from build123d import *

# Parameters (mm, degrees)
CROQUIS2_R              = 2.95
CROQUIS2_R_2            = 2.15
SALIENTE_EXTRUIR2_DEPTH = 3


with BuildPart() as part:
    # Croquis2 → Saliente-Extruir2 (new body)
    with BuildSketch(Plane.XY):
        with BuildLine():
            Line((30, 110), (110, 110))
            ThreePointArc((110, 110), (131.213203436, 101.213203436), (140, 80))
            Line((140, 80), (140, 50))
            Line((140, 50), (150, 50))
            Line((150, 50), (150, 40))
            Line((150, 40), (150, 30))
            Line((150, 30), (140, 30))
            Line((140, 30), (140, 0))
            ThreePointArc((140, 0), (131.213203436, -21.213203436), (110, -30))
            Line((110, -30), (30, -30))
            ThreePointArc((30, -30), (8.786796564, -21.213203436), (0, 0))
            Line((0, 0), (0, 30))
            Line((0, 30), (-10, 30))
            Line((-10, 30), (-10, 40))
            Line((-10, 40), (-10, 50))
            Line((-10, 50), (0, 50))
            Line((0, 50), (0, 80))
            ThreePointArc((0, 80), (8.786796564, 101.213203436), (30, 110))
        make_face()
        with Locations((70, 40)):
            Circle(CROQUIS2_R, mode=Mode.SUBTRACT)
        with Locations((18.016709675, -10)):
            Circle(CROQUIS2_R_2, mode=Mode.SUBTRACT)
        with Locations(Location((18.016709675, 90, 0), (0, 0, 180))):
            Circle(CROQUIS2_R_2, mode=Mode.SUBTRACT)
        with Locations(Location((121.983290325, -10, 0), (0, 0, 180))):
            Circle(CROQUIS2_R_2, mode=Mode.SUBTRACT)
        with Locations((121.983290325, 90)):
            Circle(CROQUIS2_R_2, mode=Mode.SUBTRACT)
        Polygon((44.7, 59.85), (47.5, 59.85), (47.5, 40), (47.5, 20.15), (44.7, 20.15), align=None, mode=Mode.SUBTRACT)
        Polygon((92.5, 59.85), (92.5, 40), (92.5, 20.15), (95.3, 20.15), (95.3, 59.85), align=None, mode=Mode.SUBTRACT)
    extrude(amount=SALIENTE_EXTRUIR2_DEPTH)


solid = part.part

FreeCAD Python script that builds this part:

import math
import FreeCAD as App
import Part
import Sketcher
Q = App.Units.Quantity

doc = App.newDocument("Part")
body = doc.addObject("PartDesign::Body", "Body")

# Sketch on XY plane
sketch1 = body.newObject("Sketcher::SketchObject", "Sketch")
sketch1.AttachmentSupport = (doc.getObject("XY_Plane"), [""])
sketch1.MapMode = "FlatFace"
sketch1.addGeometry([
    Part.LineSegment(App.Vector(110, 110, 0), App.Vector(30, 110, 0)),  # 0
    Part.ArcOfCircle(Part.Circle(App.Vector(30, 80, 0), App.Vector(0, 0, 1), 30), math.radians(90), math.radians(180)),  # 1
    Part.LineSegment(App.Vector(0, 80, 0), App.Vector(0, 50, 0)),  # 2
    Part.LineSegment(App.Vector(0, 50, 0), App.Vector(-10, 50, 0)),  # 3
    Part.LineSegment(App.Vector(-10, 50, 0), App.Vector(-10, 30, 0)),  # 4
    Part.LineSegment(App.Vector(-10, 30, 0), App.Vector(0, 30, 0)),  # 5
    Part.LineSegment(App.Vector(0, 30, 0), App.Vector(0, 0, 0)),  # 6
    Part.ArcOfCircle(Part.Circle(App.Vector(30, 0, 0), App.Vector(0, 0, 1), 30), math.radians(180), math.radians(270)),  # 7
    Part.LineSegment(App.Vector(30, -30, 0), App.Vector(110, -30, 0)),  # 8
    Part.ArcOfCircle(Part.Circle(App.Vector(110, 0, 0), App.Vector(0, 0, 1), 30), math.radians(-90), math.radians(0)),  # 9
    Part.LineSegment(App.Vector(140, 0, 0), App.Vector(140, 30, 0)),  # 10
    Part.LineSegment(App.Vector(140, 30, 0), App.Vector(150, 30, 0)),  # 11
    Part.LineSegment(App.Vector(150, 30, 0), App.Vector(150, 50, 0)),  # 12
    Part.LineSegment(App.Vector(150, 50, 0), App.Vector(140, 50, 0)),  # 13
    Part.LineSegment(App.Vector(140, 50, 0), App.Vector(140, 80, 0)),  # 14
    Part.ArcOfCircle(Part.Circle(App.Vector(110, 80, 0), App.Vector(0, 0, 1), 30), math.radians(0), math.radians(90)),  # 15
    Part.Circle(App.Vector(122, -10, 0), App.Vector(0, 0, 1), 2.1),  # 16
    Part.Circle(App.Vector(18, -10, 0), App.Vector(0, 0, 1), 2.1),  # 17
    Part.LineSegment(App.Vector(92.5, 59.9, 0), App.Vector(95.3, 59.9, 0)),  # 18
    Part.LineSegment(App.Vector(95.3, 59.9, 0), App.Vector(95.3, 20.1, 0)),  # 19
    Part.LineSegment(App.Vector(95.3, 20.1, 0), App.Vector(92.5, 20.1, 0)),  # 20
    Part.LineSegment(App.Vector(92.5, 20.1, 0), App.Vector(92.5, 59.9, 0)),  # 21
    Part.Circle(App.Vector(122, 90, 0), App.Vector(0, 0, 1), 2.1),  # 22
    Part.Circle(App.Vector(70, 40, 0), App.Vector(0, 0, 1), 3),  # 23
    Part.LineSegment(App.Vector(44.7, 59.9, 0), App.Vector(47.5, 59.9, 0)),  # 24
    Part.LineSegment(App.Vector(47.5, 59.9, 0), App.Vector(47.5, 20.1, 0)),  # 25
    Part.LineSegment(App.Vector(47.5, 20.1, 0), App.Vector(44.7, 20.1, 0)),  # 26
    Part.LineSegment(App.Vector(44.7, 20.1, 0), App.Vector(44.7, 59.9, 0)),  # 27
    Part.Circle(App.Vector(18, 90, 0), App.Vector(0, 0, 1), 2.1),  # 28
], False)
sketch1.addConstraint([
    Sketcher.Constraint("Tangent", 0, 2, 1, 1),
    Sketcher.Constraint("Tangent", 1, 2, 2, 1),
    Sketcher.Constraint("Coincident", 2, 2, 3, 1),
    Sketcher.Constraint("Coincident", 3, 2, 4, 1),
    Sketcher.Constraint("Coincident", 4, 2, 5, 1),
    Sketcher.Constraint("Coincident", 5, 2, 6, 1),
    Sketcher.Constraint("Tangent", 6, 2, 7, 1),
    Sketcher.Constraint("Tangent", 7, 2, 8, 1),
    Sketcher.Constraint("Tangent", 8, 2, 9, 1),
    Sketcher.Constraint("Tangent", 9, 2, 10, 1),
    Sketcher.Constraint("Coincident", 10, 2, 11, 1),
    Sketcher.Constraint("Coincident", 11, 2, 12, 1),
    Sketcher.Constraint("Coincident", 12, 2, 13, 1),
    Sketcher.Constraint("Coincident", 13, 2, 14, 1),
    Sketcher.Constraint("Tangent", 14, 2, 15, 1),
    Sketcher.Constraint("Tangent", 15, 2, 0, 1),
    Sketcher.Constraint("Coincident", 18, 2, 19, 1),
    Sketcher.Constraint("Coincident", 19, 2, 20, 1),
    Sketcher.Constraint("Coincident", 20, 2, 21, 1),
    Sketcher.Constraint("Coincident", 21, 2, 18, 1),
    Sketcher.Constraint("Coincident", 24, 2, 25, 1),
    Sketcher.Constraint("Coincident", 25, 2, 26, 1),
    Sketcher.Constraint("Coincident", 26, 2, 27, 1),
    Sketcher.Constraint("Coincident", 27, 2, 24, 1),
    Sketcher.Constraint("Horizontal", 0),
    Sketcher.Constraint("Vertical", 2),
    Sketcher.Constraint("Horizontal", 3),
    Sketcher.Constraint("Vertical", 4),
    Sketcher.Constraint("Horizontal", 5),
    Sketcher.Constraint("Vertical", 6),
    Sketcher.Constraint("Horizontal", 8),
    Sketcher.Constraint("Vertical", 10),
    Sketcher.Constraint("Horizontal", 11),
    Sketcher.Constraint("Vertical", 12),
    Sketcher.Constraint("Horizontal", 13),
    Sketcher.Constraint("Vertical", 14),
    Sketcher.Constraint("Horizontal", 18),
    Sketcher.Constraint("Vertical", 19),
    Sketcher.Constraint("Horizontal", 20),
    Sketcher.Constraint("Vertical", 21),
    Sketcher.Constraint("Horizontal", 24),
    Sketcher.Constraint("Vertical", 25),
    Sketcher.Constraint("Horizontal", 26),
    Sketcher.Constraint("Vertical", 27),
    Sketcher.Constraint("Coincident", 6, 2, -1, 1),
    Sketcher.Constraint("Equal", 1, 7),
    Sketcher.Constraint("Equal", 7, 9),
    Sketcher.Constraint("Equal", 9, 15),
    Sketcher.Constraint("Equal", 16, 17),
    Sketcher.Constraint("Equal", 17, 22),
    Sketcher.Constraint("Equal", 22, 28),
    Sketcher.Constraint("PointOnObject", 1, 2, -2),
    Sketcher.Constraint("Horizontal", 16, 3, 17, 3),
    Sketcher.Constraint("Horizontal", 22, 3, 28, 3),
    Sketcher.Constraint("Horizontal", 5, 2, 10, 2),
    Sketcher.Constraint("Horizontal", 3, 2, 12, 2),
    Sketcher.Constraint("Horizontal", 21, 2, 24, 2),
    Sketcher.Constraint("Horizontal", 20, 2, 25, 2),
    Sketcher.Constraint("Vertical", 9, 3, 15, 3),
    Sketcher.Constraint("Vertical", 16, 3, 22, 3),
    Sketcher.Constraint("Vertical", 17, 3, 28, 3),
    Sketcher.Constraint("Equal", 5, 11),
    Sketcher.Constraint("Equal", 20, 24),
    Sketcher.Constraint("Equal", 2, 6),
    Sketcher.Constraint("Radius", 1, Q("30 mm")),
    Sketcher.Constraint("Diameter", 16, Q("4.3 mm")),
    Sketcher.Constraint("Diameter", 23, Q("5.9 mm")),
    Sketcher.Constraint("DistanceX", 0, 2, 0, 1, Q("80 mm")),
    Sketcher.Constraint("DistanceX", 3, 2, 3, 1, Q("10 mm")),
    Sketcher.Constraint("DistanceY", 2, 2, 2, 1, Q("30 mm")),
    Sketcher.Constraint("DistanceY", 4, 2, 4, 1, Q("20 mm")),
    Sketcher.Constraint("DistanceX", 18, 1, 18, 2, Q("2.8 mm")),
    Sketcher.Constraint("DistanceY", 19, 2, 19, 1, Q("39.7 mm")),
    Sketcher.Constraint("DistanceY", 16, 3, -1, 1, Q("10 mm")),
    Sketcher.Constraint("DistanceY", -1, 1, 22, 3, Q("90 mm")),
    Sketcher.Constraint("DistanceX", -1, 1, 23, 3, Q("70 mm")),
    Sketcher.Constraint("DistanceY", -1, 1, 23, 3, Q("40 mm")),
    Sketcher.Constraint("DistanceX", 24, 2, 21, 2, Q("45 mm")),
    Sketcher.Constraint("DistanceX", -1, 1, 18, 2, Q("95.3 mm")),
    Sketcher.Constraint("DistanceY", -1, 1, 18, 2, Q("59.85 mm")),
    Sketcher.Constraint("DistanceX", -1, 1, 16, 3, Q("121.98329 mm")),
    Sketcher.Constraint("DistanceX", -1, 1, 17, 3, Q("18.01671 mm")),
])
pad1 = body.newObject("PartDesign::Pad", "Pad")
pad1.Profile = sketch1
pad1.Length = 3

doc.recompute()
